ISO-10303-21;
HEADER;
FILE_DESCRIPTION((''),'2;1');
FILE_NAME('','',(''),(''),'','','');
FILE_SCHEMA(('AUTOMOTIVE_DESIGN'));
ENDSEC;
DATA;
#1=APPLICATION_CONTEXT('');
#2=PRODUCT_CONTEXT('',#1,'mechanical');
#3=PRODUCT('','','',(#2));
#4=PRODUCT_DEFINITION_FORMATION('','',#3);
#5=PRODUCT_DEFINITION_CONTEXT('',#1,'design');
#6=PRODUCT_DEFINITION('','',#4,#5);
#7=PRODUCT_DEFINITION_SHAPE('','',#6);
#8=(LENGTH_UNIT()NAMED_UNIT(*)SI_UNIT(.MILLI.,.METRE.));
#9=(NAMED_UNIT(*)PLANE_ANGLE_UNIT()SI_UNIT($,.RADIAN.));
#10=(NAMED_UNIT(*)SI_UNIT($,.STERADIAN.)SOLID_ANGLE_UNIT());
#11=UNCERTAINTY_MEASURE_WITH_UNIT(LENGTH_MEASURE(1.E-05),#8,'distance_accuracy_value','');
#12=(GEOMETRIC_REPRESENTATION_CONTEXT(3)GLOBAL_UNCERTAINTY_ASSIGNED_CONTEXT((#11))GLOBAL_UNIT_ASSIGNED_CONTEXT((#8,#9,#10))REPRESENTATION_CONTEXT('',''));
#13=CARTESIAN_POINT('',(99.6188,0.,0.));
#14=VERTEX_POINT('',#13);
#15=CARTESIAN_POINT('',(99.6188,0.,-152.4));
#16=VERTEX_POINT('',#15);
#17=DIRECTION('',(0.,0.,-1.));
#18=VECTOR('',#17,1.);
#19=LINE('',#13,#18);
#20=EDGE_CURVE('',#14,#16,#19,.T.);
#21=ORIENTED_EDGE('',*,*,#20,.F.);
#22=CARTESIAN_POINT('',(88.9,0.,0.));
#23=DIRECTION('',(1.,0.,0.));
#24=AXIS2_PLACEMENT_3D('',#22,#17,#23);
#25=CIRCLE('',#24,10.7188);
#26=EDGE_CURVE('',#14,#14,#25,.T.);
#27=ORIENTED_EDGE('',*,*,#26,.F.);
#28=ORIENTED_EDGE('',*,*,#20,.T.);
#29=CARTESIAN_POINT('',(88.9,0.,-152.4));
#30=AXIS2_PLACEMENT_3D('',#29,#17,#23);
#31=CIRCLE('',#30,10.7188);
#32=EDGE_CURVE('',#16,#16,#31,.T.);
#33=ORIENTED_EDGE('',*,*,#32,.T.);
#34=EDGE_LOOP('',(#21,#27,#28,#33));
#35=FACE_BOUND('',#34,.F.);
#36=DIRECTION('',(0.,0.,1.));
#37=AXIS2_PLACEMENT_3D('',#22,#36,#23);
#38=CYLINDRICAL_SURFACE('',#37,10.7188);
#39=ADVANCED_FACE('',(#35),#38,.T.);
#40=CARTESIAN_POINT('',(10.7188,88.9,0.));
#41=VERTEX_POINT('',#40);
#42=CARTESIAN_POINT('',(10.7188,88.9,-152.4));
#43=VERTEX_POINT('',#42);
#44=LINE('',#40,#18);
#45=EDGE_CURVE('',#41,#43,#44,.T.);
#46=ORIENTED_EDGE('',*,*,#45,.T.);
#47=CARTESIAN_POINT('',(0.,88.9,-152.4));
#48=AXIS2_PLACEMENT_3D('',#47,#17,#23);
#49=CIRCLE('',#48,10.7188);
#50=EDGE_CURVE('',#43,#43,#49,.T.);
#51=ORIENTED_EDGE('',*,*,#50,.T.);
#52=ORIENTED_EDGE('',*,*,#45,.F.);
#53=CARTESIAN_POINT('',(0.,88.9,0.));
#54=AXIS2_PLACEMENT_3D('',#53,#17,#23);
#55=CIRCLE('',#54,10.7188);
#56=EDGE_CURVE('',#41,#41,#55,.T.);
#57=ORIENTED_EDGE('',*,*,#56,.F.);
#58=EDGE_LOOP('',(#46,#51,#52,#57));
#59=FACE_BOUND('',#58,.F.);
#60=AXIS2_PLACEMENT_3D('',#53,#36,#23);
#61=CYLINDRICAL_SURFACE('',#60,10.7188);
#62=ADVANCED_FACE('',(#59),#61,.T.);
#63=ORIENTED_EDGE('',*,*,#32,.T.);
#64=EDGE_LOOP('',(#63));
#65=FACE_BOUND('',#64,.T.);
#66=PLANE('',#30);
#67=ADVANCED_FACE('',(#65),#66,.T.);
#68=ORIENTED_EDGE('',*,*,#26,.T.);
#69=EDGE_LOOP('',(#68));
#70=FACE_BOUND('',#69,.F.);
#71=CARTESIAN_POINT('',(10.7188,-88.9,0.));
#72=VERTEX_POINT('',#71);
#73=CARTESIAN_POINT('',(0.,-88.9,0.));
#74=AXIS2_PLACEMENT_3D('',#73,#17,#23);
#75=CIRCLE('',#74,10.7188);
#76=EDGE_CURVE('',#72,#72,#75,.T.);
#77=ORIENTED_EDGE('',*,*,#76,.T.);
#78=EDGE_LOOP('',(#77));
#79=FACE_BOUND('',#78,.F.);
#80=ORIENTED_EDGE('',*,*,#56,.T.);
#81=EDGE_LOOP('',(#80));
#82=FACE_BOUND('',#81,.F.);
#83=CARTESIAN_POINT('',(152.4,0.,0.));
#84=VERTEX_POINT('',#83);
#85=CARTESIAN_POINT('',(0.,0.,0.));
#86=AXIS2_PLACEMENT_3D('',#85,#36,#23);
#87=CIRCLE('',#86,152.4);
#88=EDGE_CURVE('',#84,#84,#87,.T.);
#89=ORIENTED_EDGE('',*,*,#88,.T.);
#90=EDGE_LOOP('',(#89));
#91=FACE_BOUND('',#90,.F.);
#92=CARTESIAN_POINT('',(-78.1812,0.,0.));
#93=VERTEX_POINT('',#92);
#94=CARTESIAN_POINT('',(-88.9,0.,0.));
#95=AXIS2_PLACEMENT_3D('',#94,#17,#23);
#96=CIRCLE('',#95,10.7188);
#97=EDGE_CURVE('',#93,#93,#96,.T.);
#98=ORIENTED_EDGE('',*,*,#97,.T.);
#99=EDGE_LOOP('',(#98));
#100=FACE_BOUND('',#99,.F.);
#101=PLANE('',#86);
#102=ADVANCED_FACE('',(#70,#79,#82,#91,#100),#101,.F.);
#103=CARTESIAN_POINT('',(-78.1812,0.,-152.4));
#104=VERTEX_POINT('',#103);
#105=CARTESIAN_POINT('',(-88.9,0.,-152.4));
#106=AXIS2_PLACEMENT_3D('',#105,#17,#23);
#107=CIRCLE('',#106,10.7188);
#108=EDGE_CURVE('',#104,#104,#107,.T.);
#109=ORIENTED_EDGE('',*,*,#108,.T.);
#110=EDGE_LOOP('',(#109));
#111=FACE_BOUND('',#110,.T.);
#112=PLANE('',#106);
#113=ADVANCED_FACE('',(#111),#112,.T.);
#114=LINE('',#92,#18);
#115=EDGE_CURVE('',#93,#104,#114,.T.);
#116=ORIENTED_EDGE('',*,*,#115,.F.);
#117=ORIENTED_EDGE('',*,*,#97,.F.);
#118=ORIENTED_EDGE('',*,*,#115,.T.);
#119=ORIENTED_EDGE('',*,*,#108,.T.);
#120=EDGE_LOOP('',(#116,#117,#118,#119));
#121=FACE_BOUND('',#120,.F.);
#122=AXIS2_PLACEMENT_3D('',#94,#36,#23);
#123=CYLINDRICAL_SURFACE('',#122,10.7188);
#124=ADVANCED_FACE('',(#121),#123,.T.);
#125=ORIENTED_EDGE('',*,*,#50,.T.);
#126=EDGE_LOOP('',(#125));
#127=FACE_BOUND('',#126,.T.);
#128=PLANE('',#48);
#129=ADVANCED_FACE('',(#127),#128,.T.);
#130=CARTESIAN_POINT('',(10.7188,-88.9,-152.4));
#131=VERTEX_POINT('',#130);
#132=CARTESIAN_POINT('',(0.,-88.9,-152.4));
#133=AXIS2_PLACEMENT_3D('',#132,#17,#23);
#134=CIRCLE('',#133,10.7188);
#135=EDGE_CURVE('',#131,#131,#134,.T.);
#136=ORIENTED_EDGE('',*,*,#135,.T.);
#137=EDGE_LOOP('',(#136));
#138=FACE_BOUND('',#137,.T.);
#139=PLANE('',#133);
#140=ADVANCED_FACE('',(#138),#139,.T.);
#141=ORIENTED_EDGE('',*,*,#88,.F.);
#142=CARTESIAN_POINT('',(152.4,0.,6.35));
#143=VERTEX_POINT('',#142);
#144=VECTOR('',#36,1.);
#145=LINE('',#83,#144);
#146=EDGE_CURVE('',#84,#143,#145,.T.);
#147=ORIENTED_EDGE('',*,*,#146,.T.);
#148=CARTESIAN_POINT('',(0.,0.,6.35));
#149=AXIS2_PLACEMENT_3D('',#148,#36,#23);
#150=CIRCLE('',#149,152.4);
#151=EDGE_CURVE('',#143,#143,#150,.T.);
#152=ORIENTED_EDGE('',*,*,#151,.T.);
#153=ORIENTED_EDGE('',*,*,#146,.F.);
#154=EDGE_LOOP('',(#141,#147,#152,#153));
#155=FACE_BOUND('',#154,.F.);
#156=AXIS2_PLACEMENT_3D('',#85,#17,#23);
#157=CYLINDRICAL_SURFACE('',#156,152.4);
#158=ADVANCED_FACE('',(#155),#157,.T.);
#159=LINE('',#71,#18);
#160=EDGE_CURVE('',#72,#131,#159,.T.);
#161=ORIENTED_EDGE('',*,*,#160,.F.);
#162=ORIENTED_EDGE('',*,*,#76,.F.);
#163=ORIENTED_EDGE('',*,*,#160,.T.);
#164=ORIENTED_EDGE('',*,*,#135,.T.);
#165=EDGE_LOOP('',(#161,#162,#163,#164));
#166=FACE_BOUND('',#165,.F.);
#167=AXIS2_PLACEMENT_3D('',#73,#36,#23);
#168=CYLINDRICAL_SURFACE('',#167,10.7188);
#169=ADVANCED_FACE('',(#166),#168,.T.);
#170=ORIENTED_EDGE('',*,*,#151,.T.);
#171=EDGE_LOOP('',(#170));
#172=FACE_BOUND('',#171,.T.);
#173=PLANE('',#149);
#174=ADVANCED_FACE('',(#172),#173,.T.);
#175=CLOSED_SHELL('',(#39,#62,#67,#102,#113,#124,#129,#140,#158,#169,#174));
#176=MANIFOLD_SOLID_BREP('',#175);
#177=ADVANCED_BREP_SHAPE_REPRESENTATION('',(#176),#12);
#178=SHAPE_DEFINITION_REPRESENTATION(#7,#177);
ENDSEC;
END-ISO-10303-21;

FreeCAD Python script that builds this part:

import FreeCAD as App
import Part
import Sketcher

V = App.Vector
Q = App.Units.Quantity

doc = App.newDocument("Part")
body = doc.addObject("PartDesign::Body", "Body")

# Sketch on XY plane
sketch1 = body.newObject("Sketcher::SketchObject", "Sketch")
sketch1.AttachmentSupport = (doc.getObject("XY_Plane"), [""])
sketch1.MapMode = "FlatFace"
sketch1.addGeometry(Part.Circle(V(0, 0, 0), V(0, 0, 1), 152), False)
sketch1.addConstraint(Sketcher.Constraint("Coincident", 0, 3, -1, 1))
sketch1.addConstraint(Sketcher.Constraint("Diameter", 0, Q("12 in")))
pad1 = body.newObject("PartDesign::Pad", "Pad")
pad1.Profile = sketch1
pad1.Length = Q("0.25 in")

# Sketch on XY plane
sketch2 = body.newObject("Sketcher::SketchObject", "Sketch001")
sketch2.AttachmentSupport = (doc.getObject("XY_Plane"), [""])
sketch2.MapMode = "FlatFace"
sketch2.addGeometry(Part.Circle(V(-89, 0, 0), V(0, 0, 1), 11), False)
sketch2.addGeometry(Part.Circle(V(0, -89, 0), V(0, 0, 1), 11), False)
sketch2.addGeometry(Part.Circle(V(0, 89, 0), V(0, 0, 1), 11), False)
sketch2.addGeometry(Part.Circle(V(89, 0, 0), V(0, 0, 1), 11), False)
sketch2.addConstraint(Sketcher.Constraint("Equal", 0, 1))
sketch2.addConstraint(Sketcher.Constraint("Equal", 1, 2))
sketch2.addConstraint(Sketcher.Constraint("Equal", 2, 3))
sketch2.addConstraint(Sketcher.Constraint("Symmetric", 1, 3, 2, 3, -1, 1))
sketch2.addConstraint(Sketcher.Constraint("Symmetric", 0, 3, 3, 3, -1, 1))
sketch2.addConstraint(Sketcher.Constraint("PointOnObject", 0, 3, -1))
sketch2.addConstraint(Sketcher.Constraint("PointOnObject", 1, 3, -2))
sketch2.addConstraint(Sketcher.Constraint("Diameter", 0, Q("0.844 in")))
sketch2.addConstraint(Sketcher.Constraint("DistanceY", 1, 3, 2, 3, Q("7 in")))
sketch2.addConstraint(Sketcher.Constraint("DistanceX", 0, 3, 3, 3, Q("7 in")))
pad2 = body.newObject("PartDesign::Pad", "Pad001")
pad2.Profile = sketch2
pad2.Length = Q("6 in")
pad2.Reversed = True

doc.recompute()
